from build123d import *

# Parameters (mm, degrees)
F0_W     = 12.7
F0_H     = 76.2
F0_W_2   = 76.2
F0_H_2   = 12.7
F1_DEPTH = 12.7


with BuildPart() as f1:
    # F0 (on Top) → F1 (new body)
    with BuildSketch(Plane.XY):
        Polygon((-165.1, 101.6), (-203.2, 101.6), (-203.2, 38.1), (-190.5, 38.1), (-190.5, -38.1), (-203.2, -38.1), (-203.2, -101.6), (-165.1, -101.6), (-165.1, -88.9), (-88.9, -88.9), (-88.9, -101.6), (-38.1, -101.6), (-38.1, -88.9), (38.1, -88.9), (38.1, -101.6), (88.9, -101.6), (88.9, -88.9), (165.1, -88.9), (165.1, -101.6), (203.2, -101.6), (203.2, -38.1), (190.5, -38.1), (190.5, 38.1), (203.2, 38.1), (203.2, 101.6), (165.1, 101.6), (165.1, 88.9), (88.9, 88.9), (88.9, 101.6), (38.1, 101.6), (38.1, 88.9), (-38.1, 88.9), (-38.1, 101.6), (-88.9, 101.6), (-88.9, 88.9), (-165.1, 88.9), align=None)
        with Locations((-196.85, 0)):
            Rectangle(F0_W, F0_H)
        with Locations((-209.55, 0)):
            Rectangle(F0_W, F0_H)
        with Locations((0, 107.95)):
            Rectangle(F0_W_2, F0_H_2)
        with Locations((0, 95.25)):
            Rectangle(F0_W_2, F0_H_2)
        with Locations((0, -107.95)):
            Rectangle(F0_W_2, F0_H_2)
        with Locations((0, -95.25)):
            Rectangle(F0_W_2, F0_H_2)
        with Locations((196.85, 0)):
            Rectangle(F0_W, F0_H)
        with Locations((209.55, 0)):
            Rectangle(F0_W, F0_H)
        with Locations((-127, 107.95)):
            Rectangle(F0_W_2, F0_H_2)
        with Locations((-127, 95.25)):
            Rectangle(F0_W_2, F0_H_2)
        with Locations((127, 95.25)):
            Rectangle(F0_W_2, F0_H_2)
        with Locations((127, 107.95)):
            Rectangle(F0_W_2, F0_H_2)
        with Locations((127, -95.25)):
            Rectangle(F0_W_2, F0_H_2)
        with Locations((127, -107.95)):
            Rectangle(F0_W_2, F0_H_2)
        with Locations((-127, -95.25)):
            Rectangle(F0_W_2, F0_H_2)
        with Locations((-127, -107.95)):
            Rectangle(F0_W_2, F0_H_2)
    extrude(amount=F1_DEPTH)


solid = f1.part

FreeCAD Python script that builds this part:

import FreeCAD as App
import Part
import Sketcher

V = App.Vector
Q = App.Units.Quantity

doc = App.newDocument("Part")
body = doc.addObject("PartDesign::Body", "Body")

# Sketch on XY plane
sketch1 = body.newObject("Sketcher::SketchObject", "Sketch")
sketch1.AttachmentSupport = (doc.getObject("XY_Plane"), [""])
sketch1.MapMode = "FlatFace"
sketch1.addGeometry([
    Part.LineSegment(V(-165.1, 101.6, 0), V(-203.2, 101.6, 0)),  # 0
    Part.LineSegment(V(-203.2, 101.6, 0), V(-203.2, 38.1, 0)),  # 1
    Part.LineSegment(V(-203.2, 38.1, 0), V(-215.9, 38.1, 0)),  # 2
    Part.LineSegment(V(-215.9, 38.1, 0), V(-215.9, -38.1, 0)),  # 3
    Part.LineSegment(V(-215.9, -38.1, 0), V(-203.2, -38.1, 0)),  # 4
    Part.LineSegment(V(-203.2, -38.1, 0), V(-203.2, -101.6, 0)),  # 5
    Part.LineSegment(V(-203.2, -101.6, 0), V(-165.1, -101.6, 0)),  # 6
    Part.LineSegment(V(-165.1, -101.6, 0), V(-165.1, -114.3, 0)),  # 7
    Part.LineSegment(V(-165.1, -114.3, 0), V(-88.9, -114.3, 0)),  # 8
    Part.LineSegment(V(-88.9, -114.3, 0), V(-88.9, -101.6, 0)),  # 9
    Part.LineSegment(V(-88.9, -101.6, 0), V(-38.1, -101.6, 0)),  # 10
    Part.LineSegment(V(-38.1, -101.6, 0), V(-38.1, -114.3, 0)),  # 11
    Part.LineSegment(V(-38.1, -114.3, 0), V(38.1, -114.3, 0)),  # 12
    Part.LineSegment(V(38.1, -114.3, 0), V(38.1, -101.6, 0)),  # 13
    Part.LineSegment(V(38.1, -101.6, 0), V(88.9, -101.6, 0)),  # 14
    Part.LineSegment(V(88.9, -101.6, 0), V(88.9, -114.3, 0)),  # 15
    Part.LineSegment(V(88.9, -114.3, 0), V(165.1, -114.3, 0)),  # 16
    Part.LineSegment(V(165.1, -114.3, 0), V(165.1, -101.6, 0)),  # 17
    Part.LineSegment(V(165.1, -101.6, 0), V(203.2, -101.6, 0)),  # 18
    Part.LineSegment(V(203.2, -101.6, 0), V(203.2, -38.1, 0)),  # 19
    Part.LineSegment(V(203.2, -38.1, 0), V(215.9, -38.1, 0)),  # 20
    Part.LineSegment(V(215.9, -38.1, 0), V(215.9, 38.1, 0)),  # 21
    Part.LineSegment(V(215.9, 38.1, 0), V(203.2, 38.1, 0)),  # 22
    Part.LineSegment(V(203.2, 38.1, 0), V(203.2, 101.6, 0)),  # 23
    Part.LineSegment(V(203.2, 101.6, 0), V(165.1, 101.6, 0)),  # 24
    Part.LineSegment(V(165.1, 101.6, 0), V(165.1, 114.3, 0)),  # 25
    Part.LineSegment(V(165.1, 114.3, 0), V(88.9, 114.3, 0)),  # 26
    Part.LineSegment(V(88.9, 114.3, 0), V(88.9, 101.6, 0)),  # 27
    Part.LineSegment(V(88.9, 101.6, 0), V(38.1, 101.6, 0)),  # 28
    Part.LineSegment(V(38.1, 101.6, 0), V(38.1, 114.3, 0)),  # 29
    Part.LineSegment(V(38.1, 114.3, 0), V(-38.1, 114.3, 0)),  # 30
    Part.LineSegment(V(-38.1, 114.3, 0), V(-38.1, 101.6, 0)),  # 31
    Part.LineSegment(V(-38.1, 101.6, 0), V(-88.9, 101.6, 0)),  # 32
    Part.LineSegment(V(-88.9, 101.6, 0), V(-88.9, 114.3, 0)),  # 33
    Part.LineSegment(V(-88.9, 114.3, 0), V(-165.1, 114.3, 0)),  # 34
    Part.LineSegment(V(-165.1, 114.3, 0), V(-165.1, 101.6, 0)),  # 35
], False)
sketch1.addConstraint([
    Sketcher.Constraint("Coincident", 0, 2, 1, 1),
    Sketcher.Constraint("Coincident", 1, 2, 2, 1),
    Sketcher.Constraint("Coincident", 2, 2, 3, 1),
    Sketcher.Constraint("Coincident", 3, 2, 4, 1),
    Sketcher.Constraint("Coincident", 4, 2, 5, 1),
    Sketcher.Constraint("Coincident", 5, 2, 6, 1),
    Sketcher.Constraint("Coincident", 6, 2, 7, 1),
    Sketcher.Constraint("Coincident", 7, 2, 8, 1),
    Sketcher.Constraint("Coincident", 8, 2, 9, 1),
    Sketcher.Constraint("Coincident", 9, 2, 10, 1),
    Sketcher.Constraint("Coincident", 10, 2, 11, 1),
    Sketcher.Constraint("Coincident", 11, 2, 12, 1),
    Sketcher.Constraint("Coincident", 12, 2, 13, 1),
    Sketcher.Constraint("Coincident", 13, 2, 14, 1),
    Sketcher.Constraint("Coincident", 14, 2, 15, 1),
    Sketcher.Constraint("Coincident", 15, 2, 16, 1),
    Sketcher.Constraint("Coincident", 16, 2, 17, 1),
    Sketcher.Constraint("Coincident", 17, 2, 18, 1),
    Sketcher.Constraint("Coincident", 18, 2, 19, 1),
    Sketcher.Constraint("Coincident", 19, 2, 20, 1),
    Sketcher.Constraint("Coincident", 20, 2, 21, 1),
    Sketcher.Constraint("Coincident", 21, 2, 22, 1),
    Sketcher.Constraint("Coincident", 22, 2, 23, 1),
    Sketcher.Constraint("Coincident", 23, 2, 24, 1),
    Sketcher.Constraint("Coincident", 24, 2, 25, 1),
    Sketcher.Constraint("Coincident", 25, 2, 26, 1),
    Sketcher.Constraint("Coincident", 26, 2, 27, 1),
    Sketcher.Constraint("Coincident", 27, 2, 28, 1),
    Sketcher.Constraint("Coincident", 28, 2, 29, 1),
    Sketcher.Constraint("Coincident", 29, 2, 30, 1),
    Sketcher.Constraint("Coincident", 30, 2, 31, 1),
    Sketcher.Constraint("Coincident", 31, 2, 32, 1),
    Sketcher.Constraint("Coincident", 32, 2, 33, 1),
    Sketcher.Constraint("Coincident", 33, 2, 34, 1),
    Sketcher.Constraint("Coincident", 34, 2, 35, 1),
    Sketcher.Constraint("Coincident", 35, 2, 0, 1),
    Sketcher.Constraint("Horizontal", 0),
    Sketcher.Constraint("Vertical", 1),
    Sketcher.Constraint("Horizontal", 2),
    Sketcher.Constraint("Vertical", 3),
    Sketcher.Constraint("Horizontal", 4),
    Sketcher.Constraint("Vertical", 5),
    Sketcher.Constraint("Horizontal", 6),
    Sketcher.Constraint("Vertical", 7),
    Sketcher.Constraint("Horizontal", 8),
    Sketcher.Constraint("Vertical", 9),
    Sketcher.Constraint("Horizontal", 10),
    Sketcher.Constraint("Vertical", 11),
    Sketcher.Constraint("Horizontal", 12),
    Sketcher.Constraint("Vertical", 13),
    Sketcher.Constraint("Horizontal", 14),
    Sketcher.Constraint("Vertical", 15),
    Sketcher.Constraint("Horizontal", 16),
    Sketcher.Constraint("Vertical", 17),
    Sketcher.Constraint("Horizontal", 18),
    Sketcher.Constraint("Vertical", 19),
    Sketcher.Constraint("Horizontal", 20),
    Sketcher.Constraint("Vertical", 21),
    Sketcher.Constraint("Horizontal", 22),
    Sketcher.Constraint("Vertical", 23),
    Sketcher.Constraint("Horizontal", 24),
    Sketcher.Constraint("Vertical", 25),
    Sketcher.Constraint("Horizontal", 26),
    Sketcher.Constraint("Vertical", 27),
    Sketcher.Constraint("Horizontal", 28),
    Sketcher.Constraint("Vertical", 29),
    Sketcher.Constraint("Horizontal", 30),
    Sketcher.Constraint("Vertical", 31),
    Sketcher.Constraint("Horizontal", 32),
    Sketcher.Constraint("Vertical", 33),
    Sketcher.Constraint("Horizontal", 34),
    Sketcher.Constraint("Vertical", 35),
    Sketcher.Constraint("Symmetric", 0, 2, 18, 2, -1, 1),
    Sketcher.Constraint("Symmetric", 2, 2, 20, 2, -1, 1),
    Sketcher.Constraint("Symmetric", 4, 2, 22, 2, -1, 1),
    Sketcher.Constraint("Symmetric", 6, 2, 24, 2, -1, 1),
    Sketcher.Constraint("Symmetric", 8, 2, 26, 2, -1, 1),
    Sketcher.Constraint("Symmetric", 10, 2, 28, 2, -1, 1),
    Sketcher.Constraint("Symmetric", 12, 2, 30, 2, -1, 1),
    Sketcher.Constraint("Symmetric", 14, 2, 32, 2, -1, 1),
    Sketcher.Constraint("Symmetric", 16, 2, 34, 2, -1, 1),
    Sketcher.Constraint("Symmetric", 10, 2, 13, 2, -2),
    Sketcher.Constraint("Symmetric", 8, 2, 15, 2, -2),
    Sketcher.Constraint("Symmetric", 6, 2, 17, 2, -2),
    Sketcher.Constraint("Symmetric", 4, 2, 19, 2, -2),
    Sketcher.Constraint("Horizontal", 6, 2, 9, 2),
    Sketcher.Constraint("Horizontal", 8, 2, 11, 2),
    Sketcher.Constraint("Equal", 8, 12),
    Sketcher.Constraint("Equal", 34, 3),
    Sketcher.Constraint("Equal", 22, 7),
    Sketcher.Constraint("DistanceX", 8, 1, 8, 2, Q("3 in")),
    Sketcher.Constraint("DistanceX", 10, 1, 10, 2, Q("2 in")),
    Sketcher.Constraint("DistanceX", 0, 2, 0, 1, Q("1.5 in")),
    Sketcher.Constraint("DistanceX", 2, 2, 2, 1, Q("0.5 in")),
    Sketcher.Constraint("DistanceY", 1, 2, 1, 1, Q("2.5 in")),
])
pad1 = body.newObject("PartDesign::Pad", "Pad")
pad1.Profile = sketch1
pad1.Length = Q("0.5 in")

doc.recompute()
